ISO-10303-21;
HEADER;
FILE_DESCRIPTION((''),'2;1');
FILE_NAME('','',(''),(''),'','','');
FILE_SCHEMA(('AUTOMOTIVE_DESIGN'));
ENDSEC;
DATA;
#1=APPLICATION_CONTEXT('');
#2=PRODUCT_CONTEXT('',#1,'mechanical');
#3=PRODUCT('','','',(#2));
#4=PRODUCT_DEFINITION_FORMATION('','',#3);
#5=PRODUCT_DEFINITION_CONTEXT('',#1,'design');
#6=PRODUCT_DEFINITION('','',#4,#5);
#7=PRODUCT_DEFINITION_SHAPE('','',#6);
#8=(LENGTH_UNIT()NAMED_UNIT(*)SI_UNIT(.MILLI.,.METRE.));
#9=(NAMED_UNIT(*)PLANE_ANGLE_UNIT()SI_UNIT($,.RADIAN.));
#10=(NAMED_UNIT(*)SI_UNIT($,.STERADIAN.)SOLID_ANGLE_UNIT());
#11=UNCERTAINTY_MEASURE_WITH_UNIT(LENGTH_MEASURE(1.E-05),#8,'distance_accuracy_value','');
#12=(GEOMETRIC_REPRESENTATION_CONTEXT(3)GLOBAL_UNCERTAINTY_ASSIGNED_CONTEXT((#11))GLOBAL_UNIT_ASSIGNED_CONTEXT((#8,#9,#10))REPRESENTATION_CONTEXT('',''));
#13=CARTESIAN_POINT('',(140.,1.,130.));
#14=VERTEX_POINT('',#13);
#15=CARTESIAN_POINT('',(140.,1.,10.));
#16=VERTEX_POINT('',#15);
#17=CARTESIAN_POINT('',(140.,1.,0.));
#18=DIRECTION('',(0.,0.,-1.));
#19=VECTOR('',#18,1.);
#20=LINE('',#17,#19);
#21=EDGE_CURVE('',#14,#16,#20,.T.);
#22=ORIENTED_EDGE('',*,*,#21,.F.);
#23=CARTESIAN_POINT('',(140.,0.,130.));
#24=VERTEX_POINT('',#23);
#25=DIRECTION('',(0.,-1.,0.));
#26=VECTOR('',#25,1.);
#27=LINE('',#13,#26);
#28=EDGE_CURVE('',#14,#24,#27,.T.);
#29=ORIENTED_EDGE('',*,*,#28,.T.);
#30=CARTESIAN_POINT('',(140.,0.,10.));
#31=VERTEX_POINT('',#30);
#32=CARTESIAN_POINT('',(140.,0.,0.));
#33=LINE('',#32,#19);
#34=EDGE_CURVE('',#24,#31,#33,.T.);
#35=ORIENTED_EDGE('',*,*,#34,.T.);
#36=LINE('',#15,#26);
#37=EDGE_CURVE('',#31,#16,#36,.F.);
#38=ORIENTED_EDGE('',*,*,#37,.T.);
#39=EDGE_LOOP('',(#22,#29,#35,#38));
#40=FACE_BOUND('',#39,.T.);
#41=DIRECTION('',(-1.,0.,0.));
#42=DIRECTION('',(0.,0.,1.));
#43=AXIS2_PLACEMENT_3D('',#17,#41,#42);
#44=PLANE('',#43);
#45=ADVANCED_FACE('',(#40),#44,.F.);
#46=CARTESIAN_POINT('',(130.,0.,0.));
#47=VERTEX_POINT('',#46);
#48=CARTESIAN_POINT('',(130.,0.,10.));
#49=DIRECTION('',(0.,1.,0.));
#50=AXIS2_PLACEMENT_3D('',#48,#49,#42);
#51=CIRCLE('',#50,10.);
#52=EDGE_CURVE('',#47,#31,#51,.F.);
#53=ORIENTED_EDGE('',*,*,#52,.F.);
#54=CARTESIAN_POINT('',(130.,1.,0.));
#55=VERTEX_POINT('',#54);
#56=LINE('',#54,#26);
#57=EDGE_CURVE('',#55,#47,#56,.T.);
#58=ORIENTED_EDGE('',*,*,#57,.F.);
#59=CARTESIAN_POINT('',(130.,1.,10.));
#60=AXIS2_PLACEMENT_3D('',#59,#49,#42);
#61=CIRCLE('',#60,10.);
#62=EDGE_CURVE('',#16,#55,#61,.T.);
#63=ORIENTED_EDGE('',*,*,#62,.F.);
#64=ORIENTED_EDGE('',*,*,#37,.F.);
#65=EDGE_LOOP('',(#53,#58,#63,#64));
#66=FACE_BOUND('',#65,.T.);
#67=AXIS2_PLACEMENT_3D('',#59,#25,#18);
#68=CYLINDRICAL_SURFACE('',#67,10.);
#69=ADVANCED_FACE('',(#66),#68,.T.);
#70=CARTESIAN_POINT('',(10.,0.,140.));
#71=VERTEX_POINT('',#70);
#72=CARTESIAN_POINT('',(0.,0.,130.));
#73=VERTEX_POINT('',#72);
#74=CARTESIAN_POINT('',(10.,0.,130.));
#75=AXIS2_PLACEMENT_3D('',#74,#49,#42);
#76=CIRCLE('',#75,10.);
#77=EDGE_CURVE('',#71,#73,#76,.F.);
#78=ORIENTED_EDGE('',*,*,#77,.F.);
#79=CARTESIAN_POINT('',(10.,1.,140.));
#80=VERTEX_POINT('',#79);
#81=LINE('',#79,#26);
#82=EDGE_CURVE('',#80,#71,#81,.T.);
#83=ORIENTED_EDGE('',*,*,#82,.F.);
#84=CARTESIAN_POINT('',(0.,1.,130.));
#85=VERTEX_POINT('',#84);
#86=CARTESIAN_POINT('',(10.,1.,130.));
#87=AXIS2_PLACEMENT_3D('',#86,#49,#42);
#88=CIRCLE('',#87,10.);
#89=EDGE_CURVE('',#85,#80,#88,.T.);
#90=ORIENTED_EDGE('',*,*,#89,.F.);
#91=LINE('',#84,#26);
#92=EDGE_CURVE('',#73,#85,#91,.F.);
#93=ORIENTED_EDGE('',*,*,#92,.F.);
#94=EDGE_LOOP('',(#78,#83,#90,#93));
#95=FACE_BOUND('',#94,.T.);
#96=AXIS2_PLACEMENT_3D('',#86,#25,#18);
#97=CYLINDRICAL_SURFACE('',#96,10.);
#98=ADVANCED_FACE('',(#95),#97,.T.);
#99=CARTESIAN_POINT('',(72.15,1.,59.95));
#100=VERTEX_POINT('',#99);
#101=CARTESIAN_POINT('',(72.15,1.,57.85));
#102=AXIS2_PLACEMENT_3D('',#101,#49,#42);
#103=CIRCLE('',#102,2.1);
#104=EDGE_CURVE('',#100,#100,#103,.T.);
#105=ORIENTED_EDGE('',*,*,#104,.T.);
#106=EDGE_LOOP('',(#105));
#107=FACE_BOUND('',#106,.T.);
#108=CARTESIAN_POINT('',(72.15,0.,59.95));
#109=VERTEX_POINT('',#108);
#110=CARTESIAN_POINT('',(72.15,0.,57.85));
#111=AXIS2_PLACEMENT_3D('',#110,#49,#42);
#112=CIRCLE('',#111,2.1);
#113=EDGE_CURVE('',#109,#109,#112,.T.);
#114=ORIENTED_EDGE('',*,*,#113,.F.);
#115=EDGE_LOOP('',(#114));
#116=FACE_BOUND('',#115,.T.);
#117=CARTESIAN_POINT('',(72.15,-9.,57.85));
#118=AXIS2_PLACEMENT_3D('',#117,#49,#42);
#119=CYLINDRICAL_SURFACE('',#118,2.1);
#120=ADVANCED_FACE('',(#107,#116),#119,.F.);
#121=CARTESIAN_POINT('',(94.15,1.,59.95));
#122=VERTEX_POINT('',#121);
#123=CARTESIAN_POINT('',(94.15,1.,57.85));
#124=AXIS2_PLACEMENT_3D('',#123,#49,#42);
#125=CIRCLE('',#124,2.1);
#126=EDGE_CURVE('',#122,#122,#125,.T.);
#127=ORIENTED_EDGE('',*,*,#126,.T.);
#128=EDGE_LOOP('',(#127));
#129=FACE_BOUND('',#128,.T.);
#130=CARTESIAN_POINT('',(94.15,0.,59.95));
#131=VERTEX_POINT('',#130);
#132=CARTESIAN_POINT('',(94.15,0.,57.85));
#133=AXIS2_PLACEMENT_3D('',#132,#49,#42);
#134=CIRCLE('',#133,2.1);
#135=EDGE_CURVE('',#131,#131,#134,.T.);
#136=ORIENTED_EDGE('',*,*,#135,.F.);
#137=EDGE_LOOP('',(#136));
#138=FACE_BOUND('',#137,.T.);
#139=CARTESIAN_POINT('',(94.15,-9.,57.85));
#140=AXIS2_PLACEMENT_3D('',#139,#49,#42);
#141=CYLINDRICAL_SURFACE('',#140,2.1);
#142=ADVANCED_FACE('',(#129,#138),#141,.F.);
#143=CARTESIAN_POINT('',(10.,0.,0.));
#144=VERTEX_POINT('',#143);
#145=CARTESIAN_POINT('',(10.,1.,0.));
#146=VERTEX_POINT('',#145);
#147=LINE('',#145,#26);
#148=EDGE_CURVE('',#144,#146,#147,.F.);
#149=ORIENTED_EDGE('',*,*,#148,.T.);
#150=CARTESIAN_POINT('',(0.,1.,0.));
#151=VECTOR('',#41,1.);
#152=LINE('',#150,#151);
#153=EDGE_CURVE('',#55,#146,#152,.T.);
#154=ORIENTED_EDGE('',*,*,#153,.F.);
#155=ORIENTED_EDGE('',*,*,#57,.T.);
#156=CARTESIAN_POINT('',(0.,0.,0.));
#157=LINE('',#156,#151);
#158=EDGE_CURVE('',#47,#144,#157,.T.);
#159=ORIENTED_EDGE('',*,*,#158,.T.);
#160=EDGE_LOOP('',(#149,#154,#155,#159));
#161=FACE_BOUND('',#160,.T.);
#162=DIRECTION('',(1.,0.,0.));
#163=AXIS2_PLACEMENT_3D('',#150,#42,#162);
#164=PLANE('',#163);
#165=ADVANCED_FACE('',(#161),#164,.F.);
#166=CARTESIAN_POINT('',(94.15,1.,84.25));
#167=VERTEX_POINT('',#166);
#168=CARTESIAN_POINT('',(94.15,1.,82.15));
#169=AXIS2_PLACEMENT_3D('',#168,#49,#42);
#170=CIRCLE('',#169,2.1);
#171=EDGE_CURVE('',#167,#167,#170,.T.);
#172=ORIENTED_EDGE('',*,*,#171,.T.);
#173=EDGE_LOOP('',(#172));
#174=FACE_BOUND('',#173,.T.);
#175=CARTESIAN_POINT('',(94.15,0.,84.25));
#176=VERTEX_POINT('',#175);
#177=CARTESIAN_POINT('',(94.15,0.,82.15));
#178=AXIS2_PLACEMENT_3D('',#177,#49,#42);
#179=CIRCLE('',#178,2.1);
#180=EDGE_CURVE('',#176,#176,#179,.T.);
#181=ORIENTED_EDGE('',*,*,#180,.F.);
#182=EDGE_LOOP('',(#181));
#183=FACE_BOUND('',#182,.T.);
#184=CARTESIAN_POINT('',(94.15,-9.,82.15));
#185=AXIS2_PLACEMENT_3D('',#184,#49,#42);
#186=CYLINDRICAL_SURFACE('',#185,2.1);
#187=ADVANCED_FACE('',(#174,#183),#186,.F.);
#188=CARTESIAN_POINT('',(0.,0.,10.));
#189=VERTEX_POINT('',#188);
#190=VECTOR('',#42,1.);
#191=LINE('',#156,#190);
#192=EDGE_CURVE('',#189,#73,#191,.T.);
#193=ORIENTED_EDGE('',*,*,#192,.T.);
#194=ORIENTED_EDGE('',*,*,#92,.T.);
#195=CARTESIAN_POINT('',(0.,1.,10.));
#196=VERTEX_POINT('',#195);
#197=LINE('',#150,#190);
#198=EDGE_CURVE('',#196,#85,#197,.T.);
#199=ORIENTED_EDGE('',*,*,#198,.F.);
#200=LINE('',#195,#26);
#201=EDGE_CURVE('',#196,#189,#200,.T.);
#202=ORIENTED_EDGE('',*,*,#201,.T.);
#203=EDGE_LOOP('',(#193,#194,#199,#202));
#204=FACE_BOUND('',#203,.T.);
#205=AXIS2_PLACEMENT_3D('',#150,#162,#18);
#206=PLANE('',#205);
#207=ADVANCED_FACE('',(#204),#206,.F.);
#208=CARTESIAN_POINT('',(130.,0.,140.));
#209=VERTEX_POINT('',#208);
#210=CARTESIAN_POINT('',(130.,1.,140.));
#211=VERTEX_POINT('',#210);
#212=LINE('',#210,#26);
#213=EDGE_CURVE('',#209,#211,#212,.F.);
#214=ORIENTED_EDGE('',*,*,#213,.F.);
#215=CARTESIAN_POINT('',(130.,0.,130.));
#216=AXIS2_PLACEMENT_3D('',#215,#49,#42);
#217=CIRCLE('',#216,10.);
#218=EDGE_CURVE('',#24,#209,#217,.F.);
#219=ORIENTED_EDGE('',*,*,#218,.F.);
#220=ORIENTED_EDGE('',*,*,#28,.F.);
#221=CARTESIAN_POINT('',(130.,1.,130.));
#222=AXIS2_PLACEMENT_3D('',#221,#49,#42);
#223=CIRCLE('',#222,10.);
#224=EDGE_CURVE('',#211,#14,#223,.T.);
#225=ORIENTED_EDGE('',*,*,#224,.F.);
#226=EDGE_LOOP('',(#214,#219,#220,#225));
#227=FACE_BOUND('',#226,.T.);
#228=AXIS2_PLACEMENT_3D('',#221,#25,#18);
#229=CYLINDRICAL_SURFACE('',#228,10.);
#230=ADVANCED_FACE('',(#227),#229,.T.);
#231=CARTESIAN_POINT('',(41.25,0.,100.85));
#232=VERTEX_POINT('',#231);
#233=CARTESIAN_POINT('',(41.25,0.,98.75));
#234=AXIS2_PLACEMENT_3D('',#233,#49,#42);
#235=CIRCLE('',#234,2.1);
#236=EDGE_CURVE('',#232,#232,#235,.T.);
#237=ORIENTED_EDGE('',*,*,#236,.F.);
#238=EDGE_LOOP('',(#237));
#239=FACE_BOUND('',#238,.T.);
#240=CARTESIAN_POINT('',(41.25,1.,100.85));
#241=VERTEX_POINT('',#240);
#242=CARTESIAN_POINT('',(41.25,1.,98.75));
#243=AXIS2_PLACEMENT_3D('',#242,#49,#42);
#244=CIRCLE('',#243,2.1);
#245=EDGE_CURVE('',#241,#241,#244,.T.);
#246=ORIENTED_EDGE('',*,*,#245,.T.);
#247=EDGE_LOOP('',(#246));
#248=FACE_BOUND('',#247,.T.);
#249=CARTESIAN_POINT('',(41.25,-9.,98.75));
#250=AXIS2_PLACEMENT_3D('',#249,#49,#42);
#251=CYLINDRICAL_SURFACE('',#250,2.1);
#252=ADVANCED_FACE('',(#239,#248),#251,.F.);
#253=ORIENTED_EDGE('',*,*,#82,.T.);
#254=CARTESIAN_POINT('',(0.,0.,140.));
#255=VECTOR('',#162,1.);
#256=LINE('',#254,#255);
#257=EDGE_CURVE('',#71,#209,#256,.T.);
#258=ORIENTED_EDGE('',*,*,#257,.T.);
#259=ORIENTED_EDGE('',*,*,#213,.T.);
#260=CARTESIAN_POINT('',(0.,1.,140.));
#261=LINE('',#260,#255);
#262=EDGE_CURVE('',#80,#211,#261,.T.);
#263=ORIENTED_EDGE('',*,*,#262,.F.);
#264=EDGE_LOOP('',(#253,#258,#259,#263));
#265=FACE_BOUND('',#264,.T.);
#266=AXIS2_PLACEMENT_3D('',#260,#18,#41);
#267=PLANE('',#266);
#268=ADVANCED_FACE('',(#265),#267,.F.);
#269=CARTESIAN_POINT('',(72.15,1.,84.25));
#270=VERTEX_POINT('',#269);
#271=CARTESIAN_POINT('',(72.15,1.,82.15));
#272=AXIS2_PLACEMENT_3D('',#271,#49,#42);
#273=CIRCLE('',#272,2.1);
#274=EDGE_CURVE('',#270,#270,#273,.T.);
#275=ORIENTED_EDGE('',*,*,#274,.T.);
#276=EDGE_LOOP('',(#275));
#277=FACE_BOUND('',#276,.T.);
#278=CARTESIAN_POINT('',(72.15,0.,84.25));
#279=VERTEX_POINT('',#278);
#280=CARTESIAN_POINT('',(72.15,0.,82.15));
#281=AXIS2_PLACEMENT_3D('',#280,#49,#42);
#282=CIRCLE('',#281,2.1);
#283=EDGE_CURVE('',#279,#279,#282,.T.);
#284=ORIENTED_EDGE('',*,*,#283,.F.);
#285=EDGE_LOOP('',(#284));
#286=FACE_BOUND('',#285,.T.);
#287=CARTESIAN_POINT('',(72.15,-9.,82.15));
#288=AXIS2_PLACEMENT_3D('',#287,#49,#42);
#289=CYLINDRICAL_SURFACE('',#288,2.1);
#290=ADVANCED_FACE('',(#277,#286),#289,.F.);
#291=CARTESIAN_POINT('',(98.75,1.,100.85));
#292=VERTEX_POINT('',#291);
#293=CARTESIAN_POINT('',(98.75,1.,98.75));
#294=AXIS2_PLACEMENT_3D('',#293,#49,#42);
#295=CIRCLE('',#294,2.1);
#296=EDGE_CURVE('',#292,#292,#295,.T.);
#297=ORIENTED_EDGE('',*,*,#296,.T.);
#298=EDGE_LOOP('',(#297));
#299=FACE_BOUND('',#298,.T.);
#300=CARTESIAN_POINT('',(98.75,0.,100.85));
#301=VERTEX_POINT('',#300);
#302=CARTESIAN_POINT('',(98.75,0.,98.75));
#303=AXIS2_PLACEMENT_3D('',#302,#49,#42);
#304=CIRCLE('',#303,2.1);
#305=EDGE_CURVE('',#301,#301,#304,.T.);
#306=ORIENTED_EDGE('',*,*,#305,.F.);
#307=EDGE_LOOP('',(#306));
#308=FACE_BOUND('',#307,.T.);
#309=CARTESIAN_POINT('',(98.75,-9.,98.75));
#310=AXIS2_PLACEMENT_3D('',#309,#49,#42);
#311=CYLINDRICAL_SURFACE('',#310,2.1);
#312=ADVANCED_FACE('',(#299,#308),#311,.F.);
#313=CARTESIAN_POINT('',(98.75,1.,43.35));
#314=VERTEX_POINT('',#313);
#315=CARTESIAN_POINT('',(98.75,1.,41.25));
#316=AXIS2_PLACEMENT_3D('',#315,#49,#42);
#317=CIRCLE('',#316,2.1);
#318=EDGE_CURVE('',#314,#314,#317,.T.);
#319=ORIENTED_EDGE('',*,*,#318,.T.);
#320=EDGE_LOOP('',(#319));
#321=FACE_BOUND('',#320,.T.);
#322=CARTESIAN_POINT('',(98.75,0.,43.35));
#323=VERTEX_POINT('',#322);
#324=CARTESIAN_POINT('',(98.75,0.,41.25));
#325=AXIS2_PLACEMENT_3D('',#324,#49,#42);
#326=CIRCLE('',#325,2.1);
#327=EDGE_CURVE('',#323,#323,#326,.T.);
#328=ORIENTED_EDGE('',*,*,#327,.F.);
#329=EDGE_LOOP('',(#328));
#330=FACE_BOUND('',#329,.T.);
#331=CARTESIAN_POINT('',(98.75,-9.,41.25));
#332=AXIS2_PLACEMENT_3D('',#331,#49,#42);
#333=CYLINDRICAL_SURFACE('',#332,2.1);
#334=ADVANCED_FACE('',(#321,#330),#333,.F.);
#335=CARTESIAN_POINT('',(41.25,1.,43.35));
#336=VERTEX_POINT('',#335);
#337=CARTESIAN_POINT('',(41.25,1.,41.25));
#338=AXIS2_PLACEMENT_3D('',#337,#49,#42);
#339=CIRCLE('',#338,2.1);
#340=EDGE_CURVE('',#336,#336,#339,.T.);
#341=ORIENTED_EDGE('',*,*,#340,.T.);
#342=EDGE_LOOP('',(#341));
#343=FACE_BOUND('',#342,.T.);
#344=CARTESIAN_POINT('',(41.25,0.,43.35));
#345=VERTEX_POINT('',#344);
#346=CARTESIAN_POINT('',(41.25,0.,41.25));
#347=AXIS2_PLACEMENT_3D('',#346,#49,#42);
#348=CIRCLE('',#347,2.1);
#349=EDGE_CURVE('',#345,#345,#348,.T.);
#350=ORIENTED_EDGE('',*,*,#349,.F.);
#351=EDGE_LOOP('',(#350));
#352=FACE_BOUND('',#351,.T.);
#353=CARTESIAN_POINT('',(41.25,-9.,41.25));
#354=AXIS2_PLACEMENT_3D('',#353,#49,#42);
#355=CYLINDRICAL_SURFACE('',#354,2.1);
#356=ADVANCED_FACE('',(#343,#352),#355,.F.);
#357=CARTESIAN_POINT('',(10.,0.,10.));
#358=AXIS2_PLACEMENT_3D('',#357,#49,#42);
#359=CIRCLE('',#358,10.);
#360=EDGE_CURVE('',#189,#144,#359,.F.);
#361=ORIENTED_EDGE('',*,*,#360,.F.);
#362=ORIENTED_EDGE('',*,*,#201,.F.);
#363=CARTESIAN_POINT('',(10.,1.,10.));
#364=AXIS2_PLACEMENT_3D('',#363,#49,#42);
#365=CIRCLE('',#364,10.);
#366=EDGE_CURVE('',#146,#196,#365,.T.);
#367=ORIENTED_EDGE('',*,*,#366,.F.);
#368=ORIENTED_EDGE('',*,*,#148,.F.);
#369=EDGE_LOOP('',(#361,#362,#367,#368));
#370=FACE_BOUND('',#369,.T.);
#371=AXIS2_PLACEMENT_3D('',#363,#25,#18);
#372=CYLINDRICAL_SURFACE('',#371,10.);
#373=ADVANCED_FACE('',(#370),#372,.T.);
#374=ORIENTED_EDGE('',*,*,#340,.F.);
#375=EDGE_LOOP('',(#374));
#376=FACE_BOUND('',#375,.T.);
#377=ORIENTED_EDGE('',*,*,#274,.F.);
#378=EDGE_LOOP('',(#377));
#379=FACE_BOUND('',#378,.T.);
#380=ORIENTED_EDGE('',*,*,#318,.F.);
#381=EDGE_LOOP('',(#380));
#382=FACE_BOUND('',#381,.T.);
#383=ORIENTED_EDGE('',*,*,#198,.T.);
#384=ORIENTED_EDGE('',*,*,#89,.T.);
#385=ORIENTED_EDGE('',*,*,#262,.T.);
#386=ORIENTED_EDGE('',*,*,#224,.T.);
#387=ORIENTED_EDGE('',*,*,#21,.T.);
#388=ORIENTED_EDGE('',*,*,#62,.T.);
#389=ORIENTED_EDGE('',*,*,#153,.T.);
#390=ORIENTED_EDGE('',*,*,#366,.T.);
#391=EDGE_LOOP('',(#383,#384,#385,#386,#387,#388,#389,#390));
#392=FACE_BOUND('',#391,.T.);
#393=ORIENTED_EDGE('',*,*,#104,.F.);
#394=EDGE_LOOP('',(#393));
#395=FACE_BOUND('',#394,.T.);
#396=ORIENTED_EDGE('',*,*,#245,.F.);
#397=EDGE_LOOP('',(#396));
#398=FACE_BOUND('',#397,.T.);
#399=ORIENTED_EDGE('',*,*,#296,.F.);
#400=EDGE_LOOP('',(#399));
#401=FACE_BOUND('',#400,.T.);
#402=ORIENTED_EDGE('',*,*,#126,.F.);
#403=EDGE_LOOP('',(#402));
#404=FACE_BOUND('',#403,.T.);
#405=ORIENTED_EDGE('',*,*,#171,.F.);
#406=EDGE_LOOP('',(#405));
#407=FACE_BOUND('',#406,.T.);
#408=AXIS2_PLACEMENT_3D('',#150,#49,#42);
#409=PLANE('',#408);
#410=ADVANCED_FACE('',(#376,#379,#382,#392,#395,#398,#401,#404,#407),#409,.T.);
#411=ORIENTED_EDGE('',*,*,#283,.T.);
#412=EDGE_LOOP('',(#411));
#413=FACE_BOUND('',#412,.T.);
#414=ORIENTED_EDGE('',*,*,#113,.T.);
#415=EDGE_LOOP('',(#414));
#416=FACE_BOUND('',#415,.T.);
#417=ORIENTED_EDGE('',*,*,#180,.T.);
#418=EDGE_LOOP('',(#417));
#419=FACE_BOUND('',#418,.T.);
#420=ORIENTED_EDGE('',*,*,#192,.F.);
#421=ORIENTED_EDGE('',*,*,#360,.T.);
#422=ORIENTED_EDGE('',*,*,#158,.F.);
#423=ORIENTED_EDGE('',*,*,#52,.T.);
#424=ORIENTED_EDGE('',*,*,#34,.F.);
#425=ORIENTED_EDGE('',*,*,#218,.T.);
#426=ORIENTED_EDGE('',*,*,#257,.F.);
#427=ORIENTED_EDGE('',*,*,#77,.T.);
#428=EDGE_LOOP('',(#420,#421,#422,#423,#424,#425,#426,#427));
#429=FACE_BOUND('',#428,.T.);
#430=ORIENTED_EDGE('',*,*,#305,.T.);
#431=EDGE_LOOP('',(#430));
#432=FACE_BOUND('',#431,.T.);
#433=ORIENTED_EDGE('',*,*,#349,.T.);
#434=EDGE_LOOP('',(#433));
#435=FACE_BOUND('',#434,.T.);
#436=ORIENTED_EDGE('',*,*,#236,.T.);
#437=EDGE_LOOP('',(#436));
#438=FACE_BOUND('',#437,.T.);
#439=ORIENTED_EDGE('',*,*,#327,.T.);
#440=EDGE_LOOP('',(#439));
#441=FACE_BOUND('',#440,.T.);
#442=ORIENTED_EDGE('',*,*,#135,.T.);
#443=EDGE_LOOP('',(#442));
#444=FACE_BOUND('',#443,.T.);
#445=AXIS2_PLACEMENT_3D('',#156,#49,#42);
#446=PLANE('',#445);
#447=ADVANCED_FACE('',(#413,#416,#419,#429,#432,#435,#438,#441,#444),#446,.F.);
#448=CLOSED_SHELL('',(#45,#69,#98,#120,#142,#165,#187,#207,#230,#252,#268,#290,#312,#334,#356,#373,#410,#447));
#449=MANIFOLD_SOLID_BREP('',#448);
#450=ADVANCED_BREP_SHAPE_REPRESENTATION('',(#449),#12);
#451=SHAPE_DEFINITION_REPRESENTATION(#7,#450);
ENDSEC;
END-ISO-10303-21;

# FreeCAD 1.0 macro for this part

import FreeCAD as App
import Part
import Sketcher
Q = App.Units.Quantity


def edges_at(feature, points):
    """Names of the edges that pass closest to the given points."""
    edges = feature.Shape.Edges
    near = lambda p: min(range(len(edges)), key=lambda i: edges[i].distToShape(Part.Vertex(*p))[0])
    return sorted({f"Edge{near(p) + 1}" for p in points})

doc = App.newDocument("Part")
params = doc.addObject("Spreadsheet::Sheet", "Params")
for row, (alias, value) in enumerate([
    ("sketch1_width", "140 mm"),
    ("pad1_length", "1 mm"),
    ("fillet_radius", "10 mm"),
    ("sketch2_diameter", "4.2 mm"),
    ("pocket1_length", "10 mm"),
], start=1):
    params.set(f"A{row}", alias)
    params.set(f"B{row}", "=" + value)
    params.setAlias(f"B{row}", alias)

body = doc.addObject("PartDesign::Body", "Body")

# Sketch on XZ plane
sketch1 = body.newObject("Sketcher::SketchObject", "Sketch")
sketch1.AttachmentSupport = (doc.getObject("XZ_Plane"), [""])
sketch1.MapMode = "FlatFace"
sketch1.addGeometry([
    Part.LineSegment(App.Vector(0, 0, 0), App.Vector(0, 140, 0)),
    Part.LineSegment(App.Vector(0, 140, 0), App.Vector(140, 140, 0)),
    Part.LineSegment(App.Vector(140, 140, 0), App.Vector(140, 0, 0)),
    Part.LineSegment(App.Vector(140, 0, 0), App.Vector(0, 0, 0)),
], False)
sketch1.addConstraint([
    Sketcher.Constraint("Coincident", 0, 2, 1, 1),
    Sketcher.Constraint("Coincident", 1, 2, 2, 1),
    Sketcher.Constraint("Coincident", 2, 2, 3, 1),
    Sketcher.Constraint("Coincident", 3, 2, 0, 1),
    Sketcher.Constraint("Vertical", 0),
    Sketcher.Constraint("Horizontal", 1),
    Sketcher.Constraint("Vertical", 2),
    Sketcher.Constraint("Horizontal", 3),
    Sketcher.Constraint("Coincident", 3, 2, -1, 1),
    Sketcher.Constraint("Equal", 3, 0),
    Sketcher.Constraint("DistanceX", 1, 1, 1, 2, Q("140 mm")),
])
sketch1.setExpression("Constraints[10]", "Params.sketch1_width")
pad1 = body.newObject("PartDesign::Pad", "Pad")
pad1.Profile = sketch1
pad1.setExpression("Length", "Params.pad1_length")
pad1.Reversed = True
doc.recompute()

fillet = body.newObject("PartDesign::Fillet", "Fillet")
fillet.Base = (pad1, edges_at(pad1, [
    (0, 0.5, 0),
    (140, 0.5, 0),
    (140, 0.5, 140),
    (0, 0.5, 140),
]))
fillet.setExpression("Radius", "Params.fillet_radius")

# Sketch on XZ plane
sketch2 = body.newObject("Sketcher::SketchObject", "Sketch001")
sketch2.AttachmentSupport = (doc.getObject("XZ_Plane"), [""])
sketch2.MapMode = "FlatFace"
sketch2.AttachmentOffset = App.Placement(App.Vector(0, 0, -1), App.Rotation())
sketch2.addGeometry([
    Part.Circle(App.Vector(98.75, 98.75, 0), App.Vector(0, 0, 1), 2.1),  # 0
    Part.Circle(App.Vector(41.25, 98.75, 0), App.Vector(0, 0, 1), 2.1),  # 1
    Part.Circle(App.Vector(41.25, 41.25, 0), App.Vector(0, 0, 1), 2.1),  # 2
    Part.Circle(App.Vector(98.75, 41.25, 0), App.Vector(0, 0, 1), 2.1),  # 3
    Part.Circle(App.Vector(72.15, 57.85, 0), App.Vector(0, 0, 1), 2.1),  # 4
    Part.Circle(App.Vector(94.15, 57.85, 0), App.Vector(0, 0, 1), 2.1),  # 5
    Part.Circle(App.Vector(72.15, 82.15, 0), App.Vector(0, 0, 1), 2.1),  # 6
    Part.Circle(App.Vector(94.15, 82.15, 0), App.Vector(0, 0, 1), 2.1),  # 7
], False)
sketch2.addConstraint([
    Sketcher.Constraint("Equal", 0, 1),
    Sketcher.Constraint("Equal", 1, 2),
    Sketcher.Constraint("Equal", 2, 3),
    Sketcher.Constraint("Equal", 3, 4),
    Sketcher.Constraint("Equal", 4, 5),
    Sketcher.Constraint("Equal", 5, 6),
    Sketcher.Constraint("Equal", 6, 7),
    Sketcher.Constraint("Horizontal", 0, 3, 1, 3),
    Sketcher.Constraint("Horizontal", 2, 3, 3, 3),
    Sketcher.Constraint("Horizontal", 4, 3, 5, 3),
    Sketcher.Constraint("Horizontal", 6, 3, 7, 3),
    Sketcher.Constraint("Vertical", 1, 3, 2, 3),
    Sketcher.Constraint("Vertical", 0, 3, 3, 3),
    Sketcher.Constraint("Vertical", 4, 3, 6, 3),
    Sketcher.Constraint("Vertical", 5, 3, 7, 3),
    Sketcher.Constraint("Diameter", 0, Q("4.2 mm")),
    Sketcher.Constraint("DistanceX", 4, 3, 5, 3, Q("22 mm")),
    Sketcher.Constraint("DistanceX", 1, 3, 0, 3, Q("57.5 mm")),
    Sketcher.Constraint("DistanceY", 2, 3, 1, 3, Q("57.5 mm")),
    Sketcher.Constraint("DistanceX", 4, 3, 3, 3, Q("26.6 mm")),
    Sketcher.Constraint("DistanceY", 3, 3, 4, 3, Q("16.6 mm")),
    Sketcher.Constraint("DistanceY", 4, 3, 6, 3, Q("24.3 mm")),
    Sketcher.Constraint("DistanceX", -1, 1, 0, 3, Q("98.75 mm")),
    Sketcher.Constraint("DistanceY", -1, 1, 0, 3, Q("98.75 mm")),
])
sketch2.setExpression("Constraints[15]", "Params.sketch2_diameter")
pocket1 = body.newObject("PartDesign::Pocket", "Pocket")
pocket1.Profile = sketch2
pocket1.setExpression("Length", "Params.pocket1_length")
pocket1.Reversed = True

doc.recompute()
